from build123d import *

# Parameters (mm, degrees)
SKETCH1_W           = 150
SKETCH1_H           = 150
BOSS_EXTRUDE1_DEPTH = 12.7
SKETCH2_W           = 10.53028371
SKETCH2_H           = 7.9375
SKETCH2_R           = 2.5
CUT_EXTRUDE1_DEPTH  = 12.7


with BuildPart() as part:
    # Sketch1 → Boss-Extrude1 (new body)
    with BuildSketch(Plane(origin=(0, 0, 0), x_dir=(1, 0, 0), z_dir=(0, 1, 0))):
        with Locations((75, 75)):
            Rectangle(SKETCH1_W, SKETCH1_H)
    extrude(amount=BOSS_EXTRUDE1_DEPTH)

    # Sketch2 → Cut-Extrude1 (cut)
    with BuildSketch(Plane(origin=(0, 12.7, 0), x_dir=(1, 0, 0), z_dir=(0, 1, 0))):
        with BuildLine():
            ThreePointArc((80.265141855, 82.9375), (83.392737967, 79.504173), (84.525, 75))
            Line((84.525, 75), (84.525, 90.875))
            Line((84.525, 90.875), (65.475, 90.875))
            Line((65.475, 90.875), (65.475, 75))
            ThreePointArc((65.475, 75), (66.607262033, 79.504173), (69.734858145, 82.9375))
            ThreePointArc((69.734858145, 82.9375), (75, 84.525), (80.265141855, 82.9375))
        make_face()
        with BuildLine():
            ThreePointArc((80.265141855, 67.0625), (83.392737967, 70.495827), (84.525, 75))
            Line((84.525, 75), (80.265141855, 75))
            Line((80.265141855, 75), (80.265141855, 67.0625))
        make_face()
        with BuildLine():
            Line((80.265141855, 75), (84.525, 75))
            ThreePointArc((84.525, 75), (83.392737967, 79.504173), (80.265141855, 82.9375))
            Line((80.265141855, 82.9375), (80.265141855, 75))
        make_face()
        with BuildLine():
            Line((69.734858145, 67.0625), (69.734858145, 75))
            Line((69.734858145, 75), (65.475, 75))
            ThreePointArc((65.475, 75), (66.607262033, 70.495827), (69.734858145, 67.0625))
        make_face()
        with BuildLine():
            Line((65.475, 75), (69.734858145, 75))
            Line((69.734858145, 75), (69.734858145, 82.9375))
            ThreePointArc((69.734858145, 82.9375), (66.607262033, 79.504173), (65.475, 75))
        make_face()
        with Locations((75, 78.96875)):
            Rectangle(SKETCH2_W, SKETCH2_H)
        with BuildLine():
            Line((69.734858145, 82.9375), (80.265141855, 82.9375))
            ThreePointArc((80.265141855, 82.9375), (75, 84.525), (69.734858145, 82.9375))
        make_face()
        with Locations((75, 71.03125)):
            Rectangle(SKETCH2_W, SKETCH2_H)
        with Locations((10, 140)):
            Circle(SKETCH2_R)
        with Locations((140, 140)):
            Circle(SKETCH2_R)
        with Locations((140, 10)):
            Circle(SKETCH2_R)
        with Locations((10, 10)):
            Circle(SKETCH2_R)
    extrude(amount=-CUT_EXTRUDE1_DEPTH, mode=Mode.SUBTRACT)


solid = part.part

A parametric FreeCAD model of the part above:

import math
import FreeCAD as App
import Part
import Sketcher

V = App.Vector
Q = App.Units.Quantity


def add_polygon(sketch, points):
    """Adds a closed chain of lines whose ends are joined by coincident constraints."""
    first, n = sketch.GeometryCount, len(points)
    for a, b in zip(points, points[1:] + points[:1]):
        sketch.addGeometry(Part.LineSegment(App.Vector(*a, 0), App.Vector(*b, 0)), False)
    for i in range(n):
        sketch.addConstraint(Sketcher.Constraint("Coincident", first + i, 2, first + (i + 1) % n, 1))

doc = App.newDocument("Part")
params = doc.addObject("Spreadsheet::Sheet", "Params")
for row, (alias, value) in enumerate([
    ("pad1_length", "0.5 in"),
    ("sketch2_radius", "0.375 in"),
    ("sketch2_height", "0.625 in"),
    ("pocket1_length", "0.5 in"),
], start=1):
    params.set(f"A{row}", alias)
    params.set(f"B{row}", "=" + value)
    params.setAlias(f"B{row}", alias)

body = doc.addObject("PartDesign::Body", "Body")

sketch1 = body.newObject("Sketcher::SketchObject", "Sketch")
sketch1.AttachmentSupport = (doc.getObject("XZ_Plane"), [""])
sketch1.MapMode = "FlatFace"
add_polygon(sketch1, [(0, -150), (0, 0), (150, 0), (150, -150)])
sketch1.addConstraint([
    Sketcher.Constraint("Vertical", 0),
    Sketcher.Constraint("Horizontal", 1),
    Sketcher.Constraint("Vertical", 2),
    Sketcher.Constraint("Horizontal", 3),
    Sketcher.Constraint("Coincident", 0, 2, -1, 1),
    Sketcher.Constraint("Equal", 3, 0),
    Sketcher.Constraint("DistanceX", 1, 1, 1, 2, Q("150 mm")),
])
pad1 = body.newObject("PartDesign::Pad", "Pad")
pad1.Profile = sketch1
pad1.setExpression("Length", "Params.pad1_length")
pad1.Reversed = True

sketch2 = body.newObject("Sketcher::SketchObject", "Sketch001")
sketch2.AttachmentSupport = (doc.getObject("XZ_Plane"), [""])
sketch2.MapMode = "FlatFace"
sketch2.AttachmentOffset = App.Placement(V(0, 0, -0.5 * 25.4), App.Rotation())
sketch2.addGeometry([
    Part.ArcOfCircle(Part.Circle(V(75, -75, 0), V(0, 0, 1), 9.5), math.radians(0), math.radians(56)),
    Part.LineSegment(V(84.5, -75, 0), V(84.5, -90.9, 0)),
    Part.LineSegment(V(84.5, -90.9, 0), V(65.5, -90.9, 0)),
    Part.LineSegment(V(65.5, -90.9, 0), V(65.5, -75, 0)),
    Part.ArcOfCircle(Part.Circle(V(75, -75, 0), V(0, 0, 1), 9.5), math.radians(124), math.radians(180)),
    Part.LineSegment(V(69.7, -67.1, 0), V(80.3, -67.1, 0)),
    Part.Circle(V(10, -140, 0), V(0, 0, 1), 2.5),
    Part.Circle(V(140, -140, 0), V(0, 0, 1), 2.5),
    Part.Circle(V(140, -10, 0), V(0, 0, 1), 2.5),
    Part.Circle(V(10, -10, 0), V(0, 0, 1), 2.5),
], False)
sketch2.addConstraint([
    Sketcher.Constraint("Tangent", 0, 1, 1, 1),
    Sketcher.Constraint("Coincident", 1, 2, 2, 1),
    Sketcher.Constraint("Coincident", 2, 2, 3, 1),
    Sketcher.Constraint("Tangent", 3, 2, 4, 2),
    Sketcher.Constraint("Coincident", 4, 1, 5, 1),
    Sketcher.Constraint("Coincident", 5, 2, 0, 2),
    Sketcher.Constraint("Vertical", 1),
    Sketcher.Constraint("Horizontal", 2),
    Sketcher.Constraint("Vertical", 3),
    Sketcher.Constraint("Horizontal", 5),
    Sketcher.Constraint("Coincident", 4, 3, 0, 3),
    Sketcher.Constraint("Equal", 0, 4),
    Sketcher.Constraint("Equal", 6, 7),
    Sketcher.Constraint("Equal", 7, 8),
    Sketcher.Constraint("Equal", 8, 9),
    Sketcher.Constraint("Horizontal", 6, 3, 7, 3),
    Sketcher.Constraint("Horizontal", 8, 3, 9, 3),
    Sketcher.Constraint("Vertical", 7, 3, 8, 3),
    Sketcher.Constraint("Vertical", 6, 3, 9, 3),
    Sketcher.Constraint("Radius", 0, Q("0.375 in")),
    Sketcher.Constraint("Diameter", 6, Q("5 mm")),
    Sketcher.Constraint("DistanceY", 1, 2, 1, 1, Q("0.625 in")),
    Sketcher.Constraint("DistanceY", 3, 2, 4, 1, Q("0.3125 in")),
    Sketcher.Constraint("DistanceX", -1, 1, 0, 3, Q("75 mm")),
    Sketcher.Constraint("DistanceY", 0, 3, -1, 1, Q("75 mm")),
    Sketcher.Constraint("DistanceX", -1, 1, 6, 3, Q("10 mm")),
    Sketcher.Constraint("DistanceY", 6, 3, -1, 1, Q("140 mm")),
    Sketcher.Constraint("DistanceX", -1, 1, 7, 3, Q("140 mm")),
    Sketcher.Constraint("DistanceY", 8, 3, -1, 1, Q("10 mm")),
])
sketch2.setExpression("Constraints[19]", "Params.sketch2_radius")
sketch2.setExpression("Constraints[21]", "Params.sketch2_height")
pocket1 = body.newObject("PartDesign::Pocket", "Pocket")
pocket1.Profile = sketch2
pocket1.setExpression("Length", "Params.pocket1_length")
pocket1.Reversed = True

doc.recompute()
